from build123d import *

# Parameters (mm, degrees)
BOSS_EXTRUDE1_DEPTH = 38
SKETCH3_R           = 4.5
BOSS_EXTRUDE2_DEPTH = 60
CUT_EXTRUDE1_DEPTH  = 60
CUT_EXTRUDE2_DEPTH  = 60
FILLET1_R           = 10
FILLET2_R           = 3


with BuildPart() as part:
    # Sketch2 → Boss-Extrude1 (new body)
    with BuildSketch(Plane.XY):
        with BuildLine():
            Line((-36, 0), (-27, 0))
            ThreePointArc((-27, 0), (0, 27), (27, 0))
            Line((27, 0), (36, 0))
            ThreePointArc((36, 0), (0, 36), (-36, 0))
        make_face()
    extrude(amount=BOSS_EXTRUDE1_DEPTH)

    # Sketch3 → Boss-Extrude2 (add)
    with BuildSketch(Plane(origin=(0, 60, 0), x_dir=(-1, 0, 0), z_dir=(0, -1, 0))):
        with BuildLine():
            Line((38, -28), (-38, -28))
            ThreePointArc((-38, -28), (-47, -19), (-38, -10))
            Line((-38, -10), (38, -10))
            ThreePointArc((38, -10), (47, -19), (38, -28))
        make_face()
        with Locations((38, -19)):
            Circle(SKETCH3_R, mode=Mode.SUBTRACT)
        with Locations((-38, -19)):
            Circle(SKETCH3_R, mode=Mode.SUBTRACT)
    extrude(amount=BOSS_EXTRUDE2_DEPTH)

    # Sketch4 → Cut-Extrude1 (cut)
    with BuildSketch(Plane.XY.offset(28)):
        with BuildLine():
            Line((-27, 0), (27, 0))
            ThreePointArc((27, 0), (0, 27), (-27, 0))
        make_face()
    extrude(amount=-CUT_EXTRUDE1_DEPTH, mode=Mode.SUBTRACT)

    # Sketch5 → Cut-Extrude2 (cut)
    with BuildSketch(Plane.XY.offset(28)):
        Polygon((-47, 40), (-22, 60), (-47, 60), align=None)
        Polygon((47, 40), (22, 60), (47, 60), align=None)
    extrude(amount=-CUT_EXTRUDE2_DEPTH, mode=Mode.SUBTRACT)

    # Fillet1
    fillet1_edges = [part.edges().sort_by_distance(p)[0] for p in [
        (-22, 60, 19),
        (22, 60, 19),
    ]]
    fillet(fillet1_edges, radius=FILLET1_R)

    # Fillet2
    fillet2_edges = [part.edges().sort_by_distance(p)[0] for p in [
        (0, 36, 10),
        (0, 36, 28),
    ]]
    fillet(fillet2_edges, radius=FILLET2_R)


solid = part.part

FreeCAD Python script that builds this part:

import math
import FreeCAD as App
import Part
import Sketcher
Q = App.Units.Quantity


def edges_at(feature, points):
    """Names of the edges that pass closest to the given points."""
    edges = feature.Shape.Edges
    near = lambda p: min(range(len(edges)), key=lambda i: edges[i].distToShape(Part.Vertex(*p))[0])
    return sorted({f"Edge{near(p) + 1}" for p in points})

doc = App.newDocument("Part")
params = doc.addObject("Spreadsheet::Sheet", "Params")
for row, (alias, value) in enumerate([
    ("sketch1_radius", "27 mm"),
    ("sketch1_radius2", "36 mm"),
    ("pad1_length", "38 mm"),
    ("sketch2_diameter", "9 mm"),
    ("sketch2_radius", "9 mm"),
    ("sketch2_width", "76 mm"),
    ("pad2_length", "60 mm"),
    ("sketch3_radius", "27 mm"),
    ("pocket1_length", "60 mm"),
    ("sketch4_width", "25 mm"),
    ("sketch4_height", "20 mm"),
    ("pocket2_length", "60 mm"),
    ("fillet_radius", "10 mm"),
    ("fillet2_radius", "3 mm"),
], start=1):
    params.set(f"A{row}", alias)
    params.set(f"B{row}", "=" + value)
    params.setAlias(f"B{row}", alias)

body = doc.addObject("PartDesign::Body", "Body")

# Sketch on XY plane
sketch1 = doc.addObject("Sketcher::SketchObject", "Sketch")
body.addObject(sketch1)
sketch1.AttachmentSupport = (doc.XY_Plane, [""])
sketch1.MapMode = "FlatFace"
sketch1.addGeometry([
    Part.LineSegment(App.Vector(-36, 0, 0), App.Vector(-27, 0, 0)),
    Part.ArcOfCircle(Part.Circle(App.Vector(0, 0, 0), App.Vector(0, 0, 1), 27), math.radians(0), math.radians(180)),
    Part.LineSegment(App.Vector(27, 0, 0), App.Vector(36, 0, 0)),
    Part.ArcOfCircle(Part.Circle(App.Vector(0, 0, 0), App.Vector(0, 0, 1), 36), math.radians(0), math.radians(180)),
], False)
sketch1.addConstraint([
    Sketcher.Constraint("Coincident", 0, 2, 1, 2),
    Sketcher.Constraint("Coincident", 1, 1, 2, 1),
    Sketcher.Constraint("Coincident", 2, 2, 3, 1),
    Sketcher.Constraint("Coincident", 3, 2, 0, 1),
    Sketcher.Constraint("Horizontal", 0),
    Sketcher.Constraint("Horizontal", 2),
    Sketcher.Constraint("Coincident", 1, 3, -1, 1),
    Sketcher.Constraint("Coincident", 3, 3, -1, 1),
    Sketcher.Constraint("PointOnObject", 0, 2, -1),
    Sketcher.Constraint("PointOnObject", 1, 1, -1),
    Sketcher.Constraint("Radius", 1, Q("27 mm")),
    Sketcher.Constraint("Radius", 3, Q("36 mm")),
])
sketch1.setExpression("Constraints[10]", "Params.sketch1_radius")
sketch1.setExpression("Constraints[11]", "Params.sketch1_radius2")
pad1 = doc.addObject("PartDesign::Pad", "Pad")
body.addObject(pad1)
pad1.Profile = sketch1
pad1.setExpression("Length", "Params.pad1_length")

# Sketch on XZ plane
sketch2 = doc.addObject("Sketcher::SketchObject", "Sketch001")
body.addObject(sketch2)
sketch2.AttachmentSupport = (doc.XZ_Plane, [""])
sketch2.MapMode = "FlatFace"
sketch2.AttachmentOffset = App.Placement(App.Vector(0, 0, -60), App.Rotation())
sketch2.addGeometry([
    Part.LineSegment(App.Vector(38, 28, 0), App.Vector(-38, 28, 0)),  # 0
    Part.ArcOfCircle(Part.Circle(App.Vector(-38, 19, 0), App.Vector(0, 0, 1), 9), math.radians(90), math.radians(270)),  # 1
    Part.LineSegment(App.Vector(-38, 10, 0), App.Vector(38, 10, 0)),  # 2
    Part.ArcOfCircle(Part.Circle(App.Vector(38, 19, 0), App.Vector(0, 0, 1), 9), math.radians(-90), math.radians(90)),  # 3
    Part.Circle(App.Vector(-38, 19, 0), App.Vector(0, 0, 1), 4.5),  # 4
    Part.Circle(App.Vector(38, 19, 0), App.Vector(0, 0, 1), 4.5),  # 5
], False)
sketch2.addConstraint([
    Sketcher.Constraint("Tangent", 0, 2, 1, 1),
    Sketcher.Constraint("Tangent", 1, 2, 2, 1),
    Sketcher.Constraint("Tangent", 2, 2, 3, 1),
    Sketcher.Constraint("Tangent", 3, 2, 0, 1),
    Sketcher.Constraint("Horizontal", 0),
    Sketcher.Constraint("Horizontal", 2),
    Sketcher.Constraint("Coincident", 4, 3, 1, 3),
    Sketcher.Constraint("Coincident", 5, 3, 3, 3),
    Sketcher.Constraint("Equal", 4, 5),
    Sketcher.Constraint("Diameter", 4, Q("9 mm")),
    Sketcher.Constraint("Radius", 1, Q("9 mm")),
    Sketcher.Constraint("DistanceX", 0, 2, 0, 1, Q("76 mm")),
    Sketcher.Constraint("DistanceX", 1, 3, -1, 1, Q("38 mm")),
    Sketcher.Constraint("DistanceY", -1, 1, 1, 3, Q("19 mm")),
])
sketch2.setExpression("Constraints[9]", "Params.sketch2_diameter")
sketch2.setExpression("Constraints[10]", "Params.sketch2_radius")
sketch2.setExpression("Constraints[11]", "Params.sketch2_width")
pad2 = doc.addObject("PartDesign::Pad", "Pad001")
body.addObject(pad2)
pad2.Profile = sketch2
pad2.setExpression("Length", "Params.pad2_length")

# Sketch on XY plane
sketch3 = doc.addObject("Sketcher::SketchObject", "Sketch002")
body.addObject(sketch3)
sketch3.AttachmentSupport = (doc.XY_Plane, [""])
sketch3.MapMode = "FlatFace"
sketch3.AttachmentOffset = App.Placement(App.Vector(0, 0, 28), App.Rotation())
sketch3.addGeometry([
    Part.LineSegment(App.Vector(-27, 0, 0), App.Vector(27, 0, 0)),
    Part.ArcOfCircle(Part.Circle(App.Vector(0, 0, 0), App.Vector(0, 0, 1), 27), math.radians(0), math.radians(180)),
], False)
sketch3.addConstraint([
    Sketcher.Constraint("Coincident", 0, 1, 1, 2),
    Sketcher.Constraint("Coincident", 1, 1, 0, 2),
    Sketcher.Constraint("Horizontal", 0),
    Sketcher.Constraint("Coincident", 1, 3, -1, 1),
    Sketcher.Constraint("PointOnObject", 0, 1, -1),
    Sketcher.Constraint("Radius", 1, Q("27 mm")),
])
sketch3.setExpression("Constraints[5]", "Params.sketch3_radius")
pocket1 = doc.addObject("PartDesign::Pocket", "Pocket")
body.addObject(pocket1)
pocket1.Profile = sketch3
pocket1.setExpression("Length", "Params.pocket1_length")

# Sketch on XY plane
sketch4 = doc.addObject("Sketcher::SketchObject", "Sketch003")
body.addObject(sketch4)
sketch4.AttachmentSupport = (doc.XY_Plane, [""])
sketch4.MapMode = "FlatFace"
sketch4.AttachmentOffset = App.Placement(App.Vector(0, 0, 28), App.Rotation())
sketch4.addGeometry([
    Part.LineSegment(App.Vector(-47, 40, 0), App.Vector(-22, 60, 0)),  # 0
    Part.LineSegment(App.Vector(-22, 60, 0), App.Vector(-47, 60, 0)),  # 1
    Part.LineSegment(App.Vector(-47, 60, 0), App.Vector(-47, 40, 0)),  # 2
    Part.LineSegment(App.Vector(22, 60, 0), App.Vector(47, 40, 0)),  # 3
    Part.LineSegment(App.Vector(47, 40, 0), App.Vector(47, 60, 0)),  # 4
    Part.LineSegment(App.Vector(47, 60, 0), App.Vector(22, 60, 0)),  # 5
], False)
sketch4.addConstraint([
    Sketcher.Constraint("Coincident", 0, 2, 1, 1),
    Sketcher.Constraint("Coincident", 1, 2, 2, 1),
    Sketcher.Constraint("Coincident", 2, 2, 0, 1),
    Sketcher.Constraint("Coincident", 3, 2, 4, 1),
    Sketcher.Constraint("Coincident", 4, 2, 5, 1),
    Sketcher.Constraint("Coincident", 5, 2, 3, 1),
    Sketcher.Constraint("Horizontal", 1),
    Sketcher.Constraint("Vertical", 2),
    Sketcher.Constraint("Vertical", 4),
    Sketcher.Constraint("Horizontal", 5),
    Sketcher.Constraint("Symmetric", 2, 2, 3, 2, -2),
    Sketcher.Constraint("Symmetric", 0, 2, 5, 2, -2),
    Sketcher.Constraint("DistanceX", 1, 2, 1, 1, Q("25 mm")),
    Sketcher.Constraint("DistanceY", 2, 2, 2, 1, Q("20 mm")),
    Sketcher.Constraint("DistanceX", 0, 2, -1, 1, Q("22 mm")),
    Sketcher.Constraint("DistanceY", -1, 1, 0, 2, Q("60 mm")),
])
sketch4.setExpression("Constraints[12]", "Params.sketch4_width")
sketch4.setExpression("Constraints[13]", "Params.sketch4_height")
pocket2 = doc.addObject("PartDesign::Pocket", "Pocket001")
body.addObject(pocket2)
pocket2.Profile = sketch4
pocket2.setExpression("Length", "Params.pocket2_length")
doc.recompute()

fillet = doc.addObject("PartDesign::Fillet", "Fillet")
body.addObject(fillet)
fillet.Base = (pocket2, edges_at(pocket2, [(-22, 60, 19), (22, 60, 19)]))
fillet.setExpression("Radius", "Params.fillet_radius")
doc.recompute()

fillet2 = doc.addObject("PartDesign::Fillet", "Fillet001")
body.addObject(fillet2)
fillet2.Base = (fillet, edges_at(fillet, [(0, 36, 10), (0, 36, 28)]))
fillet2.setExpression("Radius", "Params.fillet2_radius")

doc.recompute()
